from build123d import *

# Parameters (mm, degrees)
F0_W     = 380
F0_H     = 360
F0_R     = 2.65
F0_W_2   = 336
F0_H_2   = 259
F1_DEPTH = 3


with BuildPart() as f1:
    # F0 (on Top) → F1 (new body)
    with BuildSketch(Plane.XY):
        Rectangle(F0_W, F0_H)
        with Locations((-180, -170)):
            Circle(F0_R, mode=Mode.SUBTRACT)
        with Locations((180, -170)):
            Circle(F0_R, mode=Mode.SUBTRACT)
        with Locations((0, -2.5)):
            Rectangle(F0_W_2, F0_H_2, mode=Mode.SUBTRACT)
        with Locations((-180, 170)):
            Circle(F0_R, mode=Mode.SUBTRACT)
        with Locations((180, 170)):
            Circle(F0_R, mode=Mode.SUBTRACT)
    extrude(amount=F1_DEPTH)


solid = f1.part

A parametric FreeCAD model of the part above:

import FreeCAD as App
import Part
import Sketcher

doc = App.newDocument("Part")
body = doc.addObject("PartDesign::Body", "Body")

# Sketch on XY plane
sketch1 = body.newObject("Sketcher::SketchObject", "Sketch")
sketch1.AttachmentSupport = (doc.getObject("XY_Plane"), [""])
sketch1.MapMode = "FlatFace"
sketch1.addGeometry(Part.LineSegment(App.Vector(-190, 180, 0), App.Vector(-190, -180, 0)), False)
sketch1.addGeometry(Part.LineSegment(App.Vector(-190, -180, 0), App.Vector(190, -180, 0)), False)
sketch1.addGeometry(Part.LineSegment(App.Vector(190, -180, 0), App.Vector(190, 180, 0)), False)
sketch1.addGeometry(Part.LineSegment(App.Vector(190, 180, 0), App.Vector(-190, 180, 0)), False)
sketch1.addGeometry(Part.Circle(App.Vector(-180, -170, 0), App.Vector(0, 0, 1), 2.6), False)
sketch1.addGeometry(Part.Circle(App.Vector(180, -170, 0), App.Vector(0, 0, 1), 2.6), False)
sketch1.addGeometry(Part.LineSegment(App.Vector(168, -132, 0), App.Vector(-168, -132, 0)), False)
sketch1.addGeometry(Part.LineSegment(App.Vector(-168, -132, 0), App.Vector(-168, 127, 0)), False)
sketch1.addGeometry(Part.LineSegment(App.Vector(-168, 127, 0), App.Vector(168, 127, 0)), False)
sketch1.addGeometry(Part.LineSegment(App.Vector(168, 127, 0), App.Vector(168, -132, 0)), False)
sketch1.addGeometry(Part.Circle(App.Vector(-180, 170, 0), App.Vector(0, 0, 1), 2.6), False)
sketch1.addGeometry(Part.Circle(App.Vector(180, 170, 0), App.Vector(0, 0, 1), 2.6), False)
sketch1.addConstraint(Sketcher.Constraint("Coincident", 0, 2, 1, 1))
sketch1.addConstraint(Sketcher.Constraint("Coincident", 1, 2, 2, 1))
sketch1.addConstraint(Sketcher.Constraint("Coincident", 2, 2, 3, 1))
sketch1.addConstraint(Sketcher.Constraint("Coincident", 3, 2, 0, 1))
sketch1.addConstraint(Sketcher.Constraint("Coincident", 6, 2, 7, 1))
sketch1.addConstraint(Sketcher.Constraint("Coincident", 7, 2, 8, 1))
sketch1.addConstraint(Sketcher.Constraint("Coincident", 8, 2, 9, 1))
sketch1.addConstraint(Sketcher.Constraint("Coincident", 9, 2, 6, 1))
sketch1.addConstraint(Sketcher.Constraint("Vertical", 0))
sketch1.addConstraint(Sketcher.Constraint("Horizontal", 1))
sketch1.addConstraint(Sketcher.Constraint("Vertical", 2))
sketch1.addConstraint(Sketcher.Constraint("Horizontal", 3))
sketch1.addConstraint(Sketcher.Constraint("Horizontal", 6))
sketch1.addConstraint(Sketcher.Constraint("Vertical", 7))
sketch1.addConstraint(Sketcher.Constraint("Horizontal", 8))
sketch1.addConstraint(Sketcher.Constraint("Vertical", 9))
sketch1.addConstraint(Sketcher.Constraint("Equal", 4, 5))
sketch1.addConstraint(Sketcher.Constraint("Equal", 5, 10))
sketch1.addConstraint(Sketcher.Constraint("Equal", 10, 11))
sketch1.addConstraint(Sketcher.Constraint("Symmetric", 5, 3, 10, 3, -1, 1))
sketch1.addConstraint(Sketcher.Constraint("Symmetric", 4, 3, 11, 3, -1, 1))
sketch1.addConstraint(Sketcher.Constraint("Symmetric", 0, 2, 2, 2, -1, 1))
sketch1.addConstraint(Sketcher.Constraint("Symmetric", 4, 3, 5, 3, -2))
sketch1.addConstraint(Sketcher.Constraint("Diameter", 4, 5.3))
sketch1.addConstraint(Sketcher.Constraint("DistanceX", 1, 1, 1, 2, 380.0))
sketch1.addConstraint(Sketcher.Constraint("DistanceX", 6, 2, 6, 1, 336.0))
sketch1.addConstraint(Sketcher.Constraint("DistanceY", 0, 2, 0, 1, 360.0))
sketch1.addConstraint(Sketcher.Constraint("DistanceY", 7, 1, 7, 2, 259.0))
sketch1.addConstraint(Sketcher.Constraint("DistanceX", 4, 3, -1, 1, 180.0))
sketch1.addConstraint(Sketcher.Constraint("DistanceY", 4, 3, -1, 1, 170.0))
sketch1.addConstraint(Sketcher.Constraint("DistanceX", 6, 2, -1, 1, 168.0))
sketch1.addConstraint(Sketcher.Constraint("DistanceY", 6, 2, -1, 1, 132.0))
pad1 = body.newObject("PartDesign::Pad", "Pad")
pad1.Profile = sketch1
pad1.Length = 3

doc.recompute()
